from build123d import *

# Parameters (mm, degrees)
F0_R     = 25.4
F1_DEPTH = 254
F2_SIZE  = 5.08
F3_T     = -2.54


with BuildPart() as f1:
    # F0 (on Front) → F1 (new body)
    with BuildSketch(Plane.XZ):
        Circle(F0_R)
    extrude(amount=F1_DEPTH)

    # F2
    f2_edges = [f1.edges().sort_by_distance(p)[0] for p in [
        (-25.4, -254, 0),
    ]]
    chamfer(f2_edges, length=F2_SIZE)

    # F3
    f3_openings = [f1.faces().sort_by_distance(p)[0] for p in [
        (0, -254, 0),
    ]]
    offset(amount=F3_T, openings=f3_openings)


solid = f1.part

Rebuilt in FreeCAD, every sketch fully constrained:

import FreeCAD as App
import Part
import Sketcher
from FreeCAD import Vector
Q = App.Units.Quantity


def edges_at(feature, points):
    """Names of the edges that pass closest to the given points."""
    edges = feature.Shape.Edges
    near = lambda p: min(range(len(edges)), key=lambda i: edges[i].distToShape(Part.Vertex(*p))[0])
    return sorted({f"Edge{near(p) + 1}" for p in points})


def faces_at(feature, points):
    """Names of the faces that lie closest to the given points."""
    faces = feature.Shape.Faces
    near = lambda p: min(range(len(faces)), key=lambda i: faces[i].distToShape(Part.Vertex(*p))[0])
    return sorted({f"Face{near(p) + 1}" for p in points})

doc = App.newDocument("Part")
body = doc.addObject("PartDesign::Body", "Body")

# Sketch on XZ plane
sketch1 = body.newObject("Sketcher::SketchObject", "Sketch")
sketch1.AttachmentSupport = (doc.getObject("XZ_Plane"), [""])
sketch1.MapMode = "FlatFace"
sketch1.addGeometry(Part.Circle(Vector(0, 0, 0), Vector(0, 0, 1), 25), False)
sketch1.addConstraint([
    Sketcher.Constraint("Coincident", 0, 3, -1, 1),
    Sketcher.Constraint("Diameter", 0, Q("2 in")),
])
pad1 = body.newObject("PartDesign::Pad", "Pad")
pad1.Profile = sketch1
pad1.Length = Q("10 in")
doc.recompute()

chamfer = body.newObject("PartDesign::Chamfer", "Chamfer")
chamfer.Base = (pad1, edges_at(pad1, [(-25.4, -254, 0)]))
chamfer.Size = Q("0.2 in")
doc.recompute()

thickness = body.newObject("PartDesign::Thickness", "Thickness")
thickness.Base = (chamfer, faces_at(chamfer, [(0, -254, 0)]))
thickness.Value = Q("0.1 in")
thickness.Reversed = True
thickness.Join = "Arc"

doc.recompute()
